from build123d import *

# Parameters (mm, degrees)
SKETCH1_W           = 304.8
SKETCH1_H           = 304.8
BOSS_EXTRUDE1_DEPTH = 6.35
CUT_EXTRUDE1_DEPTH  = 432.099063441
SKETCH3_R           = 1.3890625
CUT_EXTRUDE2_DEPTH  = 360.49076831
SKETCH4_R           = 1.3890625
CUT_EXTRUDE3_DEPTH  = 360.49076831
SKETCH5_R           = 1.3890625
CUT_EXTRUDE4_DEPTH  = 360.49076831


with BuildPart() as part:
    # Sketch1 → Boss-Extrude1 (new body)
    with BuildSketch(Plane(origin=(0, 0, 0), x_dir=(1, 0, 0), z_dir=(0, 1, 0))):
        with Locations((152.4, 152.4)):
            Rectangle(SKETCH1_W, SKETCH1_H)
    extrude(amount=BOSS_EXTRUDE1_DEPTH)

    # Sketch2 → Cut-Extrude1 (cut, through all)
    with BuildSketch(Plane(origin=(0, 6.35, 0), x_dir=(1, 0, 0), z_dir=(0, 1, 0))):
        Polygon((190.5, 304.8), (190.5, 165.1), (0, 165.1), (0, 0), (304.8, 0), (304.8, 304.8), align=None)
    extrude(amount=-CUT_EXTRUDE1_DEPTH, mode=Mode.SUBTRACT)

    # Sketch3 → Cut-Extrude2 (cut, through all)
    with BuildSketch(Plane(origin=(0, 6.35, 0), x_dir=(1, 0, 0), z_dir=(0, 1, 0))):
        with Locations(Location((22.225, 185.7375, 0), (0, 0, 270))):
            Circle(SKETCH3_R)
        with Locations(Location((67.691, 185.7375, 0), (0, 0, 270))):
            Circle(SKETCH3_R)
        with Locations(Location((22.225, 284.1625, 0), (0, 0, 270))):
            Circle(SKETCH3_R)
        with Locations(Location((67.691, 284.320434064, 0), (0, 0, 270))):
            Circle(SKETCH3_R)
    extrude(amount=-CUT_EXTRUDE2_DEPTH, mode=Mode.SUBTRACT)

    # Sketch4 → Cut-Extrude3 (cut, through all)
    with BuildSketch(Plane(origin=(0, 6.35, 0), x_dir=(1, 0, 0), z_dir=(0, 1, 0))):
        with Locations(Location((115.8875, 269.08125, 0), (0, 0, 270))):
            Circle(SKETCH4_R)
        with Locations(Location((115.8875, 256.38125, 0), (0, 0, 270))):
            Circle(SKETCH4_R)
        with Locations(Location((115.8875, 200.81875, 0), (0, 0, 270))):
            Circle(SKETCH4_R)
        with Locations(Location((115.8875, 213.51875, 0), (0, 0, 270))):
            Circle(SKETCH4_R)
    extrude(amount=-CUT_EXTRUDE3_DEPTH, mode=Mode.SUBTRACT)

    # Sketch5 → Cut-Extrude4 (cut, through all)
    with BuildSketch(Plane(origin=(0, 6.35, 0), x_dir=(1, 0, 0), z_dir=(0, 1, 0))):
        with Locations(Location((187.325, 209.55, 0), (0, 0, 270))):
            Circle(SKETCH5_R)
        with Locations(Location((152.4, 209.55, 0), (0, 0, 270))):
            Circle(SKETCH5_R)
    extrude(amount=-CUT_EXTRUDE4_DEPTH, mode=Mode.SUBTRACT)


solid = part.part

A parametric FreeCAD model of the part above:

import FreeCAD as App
import Part
import Sketcher
from FreeCAD import Vector
Q = App.Units.Quantity

doc = App.newDocument("Part")
body = doc.addObject("PartDesign::Body", "Body")

# Sketch on XZ plane
sketch1 = body.newObject("Sketcher::SketchObject", "Sketch")
sketch1.AttachmentSupport = (doc.getObject("XZ_Plane"), [""])
sketch1.MapMode = "FlatFace"
sketch1.addGeometry(Part.LineSegment(Vector(0, -304.8, 0), Vector(0, 0, 0)), False)
sketch1.addGeometry(Part.LineSegment(Vector(0, 0, 0), Vector(304.8, 0, 0)), False)
sketch1.addGeometry(Part.LineSegment(Vector(304.8, 0, 0), Vector(304.8, -304.8, 0)), False)
sketch1.addGeometry(Part.LineSegment(Vector(304.8, -304.8, 0), Vector(0, -304.8, 0)), False)
sketch1.addConstraint(Sketcher.Constraint("Coincident", 0, 2, 1, 1))
sketch1.addConstraint(Sketcher.Constraint("Coincident", 1, 2, 2, 1))
sketch1.addConstraint(Sketcher.Constraint("Coincident", 2, 2, 3, 1))
sketch1.addConstraint(Sketcher.Constraint("Coincident", 3, 2, 0, 1))
sketch1.addConstraint(Sketcher.Constraint("Vertical", 0))
sketch1.addConstraint(Sketcher.Constraint("Horizontal", 1))
sketch1.addConstraint(Sketcher.Constraint("Vertical", 2))
sketch1.addConstraint(Sketcher.Constraint("Horizontal", 3))
sketch1.addConstraint(Sketcher.Constraint("Coincident", 0, 2, -1, 1))
sketch1.addConstraint(Sketcher.Constraint("Equal", 3, 0))
sketch1.addConstraint(Sketcher.Constraint("DistanceX", 1, 1, 1, 2, Q("12 in")))
pad1 = body.newObject("PartDesign::Pad", "Pad")
pad1.Profile = sketch1
pad1.Length = Q("0.25 in")
pad1.Reversed = True

# Sketch on XZ plane
sketch2 = body.newObject("Sketcher::SketchObject", "Sketch001")
sketch2.AttachmentSupport = (doc.getObject("XZ_Plane"), [""])
sketch2.MapMode = "FlatFace"
sketch2.AttachmentOffset = App.Placement(Vector(0, 0, -0.25 * 25.4), App.Rotation())
sketch2.addGeometry(Part.LineSegment(Vector(190.5, -304.8, 0), Vector(190.5, -165.1, 0)), False)
sketch2.addGeometry(Part.LineSegment(Vector(190.5, -165.1, 0), Vector(0, -165.1, 0)), False)
sketch2.addGeometry(Part.LineSegment(Vector(0, -165.1, 0), Vector(0, 0, 0)), False)
sketch2.addGeometry(Part.LineSegment(Vector(0, 0, 0), Vector(304.8, 0, 0)), False)
sketch2.addGeometry(Part.LineSegment(Vector(304.8, 0, 0), Vector(304.8, -304.8, 0)), False)
sketch2.addGeometry(Part.LineSegment(Vector(304.8, -304.8, 0), Vector(190.5, -304.8, 0)), False)
sketch2.addConstraint(Sketcher.Constraint("Coincident", 0, 2, 1, 1))
sketch2.addConstraint(Sketcher.Constraint("Coincident", 1, 2, 2, 1))
sketch2.addConstraint(Sketcher.Constraint("Coincident", 2, 2, 3, 1))
sketch2.addConstraint(Sketcher.Constraint("Coincident", 3, 2, 4, 1))
sketch2.addConstraint(Sketcher.Constraint("Coincident", 4, 2, 5, 1))
sketch2.addConstraint(Sketcher.Constraint("Coincident", 5, 2, 0, 1))
sketch2.addConstraint(Sketcher.Constraint("Vertical", 0))
sketch2.addConstraint(Sketcher.Constraint("Horizontal", 1))
sketch2.addConstraint(Sketcher.Constraint("Vertical", 2))
sketch2.addConstraint(Sketcher.Constraint("Horizontal", 3))
sketch2.addConstraint(Sketcher.Constraint("Vertical", 4))
sketch2.addConstraint(Sketcher.Constraint("Horizontal", 5))
sketch2.addConstraint(Sketcher.Constraint("Coincident", 2, 2, -1, 1))
sketch2.addConstraint(Sketcher.Constraint("Equal", 3, 4))
sketch2.addConstraint(Sketcher.Constraint("DistanceX", 3, 1, 3, 2, Q("12 in")))
sketch2.addConstraint(Sketcher.Constraint("DistanceX", 1, 2, 1, 1, Q("7.5 in")))
sketch2.addConstraint(Sketcher.Constraint("DistanceY", 0, 1, 0, 2, Q("5.5 in")))
pocket1 = body.newObject("PartDesign::Pocket", "Pocket")
pocket1.Profile = sketch2
pocket1.Type = "ThroughAll"
pocket1.Reversed = True

# Sketch on XZ plane
sketch3 = body.newObject("Sketcher::SketchObject", "Sketch002")
sketch3.AttachmentSupport = (doc.getObject("XZ_Plane"), [""])
sketch3.MapMode = "FlatFace"
sketch3.AttachmentOffset = App.Placement(Vector(0, 0, -0.25 * 25.4), App.Rotation())
sketch3.addGeometry(Part.Circle(Vector(22.225, -185.7375, 0), Vector(0, 0, 1), 1.389063), False)
sketch3.addGeometry(Part.Circle(Vector(67.691, -185.7375, 0), Vector(0, 0, 1), 1.389063), False)
sketch3.addGeometry(Part.Circle(Vector(22.225, -284.1625, 0), Vector(0, 0, 1), 1.389063), False)
sketch3.addGeometry(Part.Circle(Vector(67.691, -284.320434, 0), Vector(0, 0, 1), 1.389063), False)
sketch3.addConstraint(Sketcher.Constraint("Equal", 0, 1))
sketch3.addConstraint(Sketcher.Constraint("Equal", 1, 2))
sketch3.addConstraint(Sketcher.Constraint("Equal", 2, 3))
sketch3.addConstraint(Sketcher.Constraint("Horizontal", 0, 3, 1, 3))
sketch3.addConstraint(Sketcher.Constraint("Vertical", 0, 3, 2, 3))
sketch3.addConstraint(Sketcher.Constraint("Vertical", 1, 3, 3, 3))
sketch3.addConstraint(Sketcher.Constraint("Diameter", 0, Q("0.109375 in")))
sketch3.addConstraint(Sketcher.Constraint("DistanceX", 0, 3, 1, 3, Q("1.79 in")))
sketch3.addConstraint(Sketcher.Constraint("DistanceX", -1, 1, 0, 3, Q("0.875 in")))
sketch3.addConstraint(Sketcher.Constraint("DistanceY", 0, 3, -1, 1, Q("7.3125 in")))
sketch3.addConstraint(Sketcher.Constraint("DistanceY", 2, 3, -1, 1, Q("11.1875 in")))
sketch3.addConstraint(Sketcher.Constraint("DistanceY", 3, 3, -1, 1, 284.320434))
pocket2 = body.newObject("PartDesign::Pocket", "Pocket001")
pocket2.Profile = sketch3
pocket2.Type = "ThroughAll"
pocket2.Reversed = True

# Sketch on XZ plane
sketch4 = body.newObject("Sketcher::SketchObject", "Sketch003")
sketch4.AttachmentSupport = (doc.getObject("XZ_Plane"), [""])
sketch4.MapMode = "FlatFace"
sketch4.AttachmentOffset = App.Placement(Vector(0, 0, -0.25 * 25.4), App.Rotation())
sketch4.addGeometry(Part.Circle(Vector(115.8875, -269.08125, 0), Vector(0, 0, 1), 1.389063), False)
sketch4.addGeometry(Part.Circle(Vector(115.8875, -256.38125, 0), Vector(0, 0, 1), 1.389063), False)
sketch4.addGeometry(Part.Circle(Vector(115.8875, -200.81875, 0), Vector(0, 0, 1), 1.389063), False)
sketch4.addGeometry(Part.Circle(Vector(115.8875, -213.51875, 0), Vector(0, 0, 1), 1.389063), False)
sketch4.addConstraint(Sketcher.Constraint("Equal", 0, 1))
sketch4.addConstraint(Sketcher.Constraint("Equal", 1, 2))
sketch4.addConstraint(Sketcher.Constraint("Equal", 2, 3))
sketch4.addConstraint(Sketcher.Constraint("Vertical", 0, 3, 1, 3))
sketch4.addConstraint(Sketcher.Constraint("Vertical", 1, 3, 2, 3))
sketch4.addConstraint(Sketcher.Constraint("Vertical", 2, 3, 3, 3))
sketch4.addConstraint(Sketcher.Constraint("Diameter", 0, Q("0.109375 in")))
sketch4.addConstraint(Sketcher.Constraint("DistanceY", 0, 3, 1, 3, Q("0.5 in")))
sketch4.addConstraint(Sketcher.Constraint("DistanceY", 3, 3, 2, 3, Q("0.5 in")))
sketch4.addConstraint(Sketcher.Constraint("DistanceX", -1, 1, 0, 3, Q("4.5625 in")))
sketch4.addConstraint(Sketcher.Constraint("DistanceY", 0, 3, -1, 1, Q("10.59375 in")))
sketch4.addConstraint(Sketcher.Constraint("DistanceY", 2, 3, -1, 1, Q("7.90625 in")))
pocket3 = body.newObject("PartDesign::Pocket", "Pocket002")
pocket3.Profile = sketch4
pocket3.Type = "ThroughAll"
pocket3.Reversed = True

# Sketch on XZ plane
sketch5 = body.newObject("Sketcher::SketchObject", "Sketch004")
sketch5.AttachmentSupport = (doc.getObject("XZ_Plane"), [""])
sketch5.MapMode = "FlatFace"
sketch5.AttachmentOffset = App.Placement(Vector(0, 0, -0.25 * 25.4), App.Rotation())
sketch5.addGeometry(Part.Circle(Vector(187.325, -209.55, 0), Vector(0, 0, 1), 1.389063), False)
sketch5.addGeometry(Part.Circle(Vector(152.4, -209.55, 0), Vector(0, 0, 1), 1.389063), False)
sketch5.addConstraint(Sketcher.Constraint("Equal", 0, 1))
sketch5.addConstraint(Sketcher.Constraint("Horizontal", 0, 3, 1, 3))
sketch5.addConstraint(Sketcher.Constraint("Diameter", 0, Q("0.109375 in")))
sketch5.addConstraint(Sketcher.Constraint("DistanceX", -1, 1, 1, 3, Q("6 in")))
sketch5.addConstraint(Sketcher.Constraint("DistanceY", 0, 3, -1, 1, Q("8.25 in")))
sketch5.addConstraint(Sketcher.Constraint("DistanceX", -1, 1, 0, 3, Q("7.375 in")))
pocket4 = body.newObject("PartDesign::Pocket", "Pocket003")
pocket4.Profile = sketch5
pocket4.Type = "ThroughAll"
pocket4.Reversed = True

doc.recompute()
